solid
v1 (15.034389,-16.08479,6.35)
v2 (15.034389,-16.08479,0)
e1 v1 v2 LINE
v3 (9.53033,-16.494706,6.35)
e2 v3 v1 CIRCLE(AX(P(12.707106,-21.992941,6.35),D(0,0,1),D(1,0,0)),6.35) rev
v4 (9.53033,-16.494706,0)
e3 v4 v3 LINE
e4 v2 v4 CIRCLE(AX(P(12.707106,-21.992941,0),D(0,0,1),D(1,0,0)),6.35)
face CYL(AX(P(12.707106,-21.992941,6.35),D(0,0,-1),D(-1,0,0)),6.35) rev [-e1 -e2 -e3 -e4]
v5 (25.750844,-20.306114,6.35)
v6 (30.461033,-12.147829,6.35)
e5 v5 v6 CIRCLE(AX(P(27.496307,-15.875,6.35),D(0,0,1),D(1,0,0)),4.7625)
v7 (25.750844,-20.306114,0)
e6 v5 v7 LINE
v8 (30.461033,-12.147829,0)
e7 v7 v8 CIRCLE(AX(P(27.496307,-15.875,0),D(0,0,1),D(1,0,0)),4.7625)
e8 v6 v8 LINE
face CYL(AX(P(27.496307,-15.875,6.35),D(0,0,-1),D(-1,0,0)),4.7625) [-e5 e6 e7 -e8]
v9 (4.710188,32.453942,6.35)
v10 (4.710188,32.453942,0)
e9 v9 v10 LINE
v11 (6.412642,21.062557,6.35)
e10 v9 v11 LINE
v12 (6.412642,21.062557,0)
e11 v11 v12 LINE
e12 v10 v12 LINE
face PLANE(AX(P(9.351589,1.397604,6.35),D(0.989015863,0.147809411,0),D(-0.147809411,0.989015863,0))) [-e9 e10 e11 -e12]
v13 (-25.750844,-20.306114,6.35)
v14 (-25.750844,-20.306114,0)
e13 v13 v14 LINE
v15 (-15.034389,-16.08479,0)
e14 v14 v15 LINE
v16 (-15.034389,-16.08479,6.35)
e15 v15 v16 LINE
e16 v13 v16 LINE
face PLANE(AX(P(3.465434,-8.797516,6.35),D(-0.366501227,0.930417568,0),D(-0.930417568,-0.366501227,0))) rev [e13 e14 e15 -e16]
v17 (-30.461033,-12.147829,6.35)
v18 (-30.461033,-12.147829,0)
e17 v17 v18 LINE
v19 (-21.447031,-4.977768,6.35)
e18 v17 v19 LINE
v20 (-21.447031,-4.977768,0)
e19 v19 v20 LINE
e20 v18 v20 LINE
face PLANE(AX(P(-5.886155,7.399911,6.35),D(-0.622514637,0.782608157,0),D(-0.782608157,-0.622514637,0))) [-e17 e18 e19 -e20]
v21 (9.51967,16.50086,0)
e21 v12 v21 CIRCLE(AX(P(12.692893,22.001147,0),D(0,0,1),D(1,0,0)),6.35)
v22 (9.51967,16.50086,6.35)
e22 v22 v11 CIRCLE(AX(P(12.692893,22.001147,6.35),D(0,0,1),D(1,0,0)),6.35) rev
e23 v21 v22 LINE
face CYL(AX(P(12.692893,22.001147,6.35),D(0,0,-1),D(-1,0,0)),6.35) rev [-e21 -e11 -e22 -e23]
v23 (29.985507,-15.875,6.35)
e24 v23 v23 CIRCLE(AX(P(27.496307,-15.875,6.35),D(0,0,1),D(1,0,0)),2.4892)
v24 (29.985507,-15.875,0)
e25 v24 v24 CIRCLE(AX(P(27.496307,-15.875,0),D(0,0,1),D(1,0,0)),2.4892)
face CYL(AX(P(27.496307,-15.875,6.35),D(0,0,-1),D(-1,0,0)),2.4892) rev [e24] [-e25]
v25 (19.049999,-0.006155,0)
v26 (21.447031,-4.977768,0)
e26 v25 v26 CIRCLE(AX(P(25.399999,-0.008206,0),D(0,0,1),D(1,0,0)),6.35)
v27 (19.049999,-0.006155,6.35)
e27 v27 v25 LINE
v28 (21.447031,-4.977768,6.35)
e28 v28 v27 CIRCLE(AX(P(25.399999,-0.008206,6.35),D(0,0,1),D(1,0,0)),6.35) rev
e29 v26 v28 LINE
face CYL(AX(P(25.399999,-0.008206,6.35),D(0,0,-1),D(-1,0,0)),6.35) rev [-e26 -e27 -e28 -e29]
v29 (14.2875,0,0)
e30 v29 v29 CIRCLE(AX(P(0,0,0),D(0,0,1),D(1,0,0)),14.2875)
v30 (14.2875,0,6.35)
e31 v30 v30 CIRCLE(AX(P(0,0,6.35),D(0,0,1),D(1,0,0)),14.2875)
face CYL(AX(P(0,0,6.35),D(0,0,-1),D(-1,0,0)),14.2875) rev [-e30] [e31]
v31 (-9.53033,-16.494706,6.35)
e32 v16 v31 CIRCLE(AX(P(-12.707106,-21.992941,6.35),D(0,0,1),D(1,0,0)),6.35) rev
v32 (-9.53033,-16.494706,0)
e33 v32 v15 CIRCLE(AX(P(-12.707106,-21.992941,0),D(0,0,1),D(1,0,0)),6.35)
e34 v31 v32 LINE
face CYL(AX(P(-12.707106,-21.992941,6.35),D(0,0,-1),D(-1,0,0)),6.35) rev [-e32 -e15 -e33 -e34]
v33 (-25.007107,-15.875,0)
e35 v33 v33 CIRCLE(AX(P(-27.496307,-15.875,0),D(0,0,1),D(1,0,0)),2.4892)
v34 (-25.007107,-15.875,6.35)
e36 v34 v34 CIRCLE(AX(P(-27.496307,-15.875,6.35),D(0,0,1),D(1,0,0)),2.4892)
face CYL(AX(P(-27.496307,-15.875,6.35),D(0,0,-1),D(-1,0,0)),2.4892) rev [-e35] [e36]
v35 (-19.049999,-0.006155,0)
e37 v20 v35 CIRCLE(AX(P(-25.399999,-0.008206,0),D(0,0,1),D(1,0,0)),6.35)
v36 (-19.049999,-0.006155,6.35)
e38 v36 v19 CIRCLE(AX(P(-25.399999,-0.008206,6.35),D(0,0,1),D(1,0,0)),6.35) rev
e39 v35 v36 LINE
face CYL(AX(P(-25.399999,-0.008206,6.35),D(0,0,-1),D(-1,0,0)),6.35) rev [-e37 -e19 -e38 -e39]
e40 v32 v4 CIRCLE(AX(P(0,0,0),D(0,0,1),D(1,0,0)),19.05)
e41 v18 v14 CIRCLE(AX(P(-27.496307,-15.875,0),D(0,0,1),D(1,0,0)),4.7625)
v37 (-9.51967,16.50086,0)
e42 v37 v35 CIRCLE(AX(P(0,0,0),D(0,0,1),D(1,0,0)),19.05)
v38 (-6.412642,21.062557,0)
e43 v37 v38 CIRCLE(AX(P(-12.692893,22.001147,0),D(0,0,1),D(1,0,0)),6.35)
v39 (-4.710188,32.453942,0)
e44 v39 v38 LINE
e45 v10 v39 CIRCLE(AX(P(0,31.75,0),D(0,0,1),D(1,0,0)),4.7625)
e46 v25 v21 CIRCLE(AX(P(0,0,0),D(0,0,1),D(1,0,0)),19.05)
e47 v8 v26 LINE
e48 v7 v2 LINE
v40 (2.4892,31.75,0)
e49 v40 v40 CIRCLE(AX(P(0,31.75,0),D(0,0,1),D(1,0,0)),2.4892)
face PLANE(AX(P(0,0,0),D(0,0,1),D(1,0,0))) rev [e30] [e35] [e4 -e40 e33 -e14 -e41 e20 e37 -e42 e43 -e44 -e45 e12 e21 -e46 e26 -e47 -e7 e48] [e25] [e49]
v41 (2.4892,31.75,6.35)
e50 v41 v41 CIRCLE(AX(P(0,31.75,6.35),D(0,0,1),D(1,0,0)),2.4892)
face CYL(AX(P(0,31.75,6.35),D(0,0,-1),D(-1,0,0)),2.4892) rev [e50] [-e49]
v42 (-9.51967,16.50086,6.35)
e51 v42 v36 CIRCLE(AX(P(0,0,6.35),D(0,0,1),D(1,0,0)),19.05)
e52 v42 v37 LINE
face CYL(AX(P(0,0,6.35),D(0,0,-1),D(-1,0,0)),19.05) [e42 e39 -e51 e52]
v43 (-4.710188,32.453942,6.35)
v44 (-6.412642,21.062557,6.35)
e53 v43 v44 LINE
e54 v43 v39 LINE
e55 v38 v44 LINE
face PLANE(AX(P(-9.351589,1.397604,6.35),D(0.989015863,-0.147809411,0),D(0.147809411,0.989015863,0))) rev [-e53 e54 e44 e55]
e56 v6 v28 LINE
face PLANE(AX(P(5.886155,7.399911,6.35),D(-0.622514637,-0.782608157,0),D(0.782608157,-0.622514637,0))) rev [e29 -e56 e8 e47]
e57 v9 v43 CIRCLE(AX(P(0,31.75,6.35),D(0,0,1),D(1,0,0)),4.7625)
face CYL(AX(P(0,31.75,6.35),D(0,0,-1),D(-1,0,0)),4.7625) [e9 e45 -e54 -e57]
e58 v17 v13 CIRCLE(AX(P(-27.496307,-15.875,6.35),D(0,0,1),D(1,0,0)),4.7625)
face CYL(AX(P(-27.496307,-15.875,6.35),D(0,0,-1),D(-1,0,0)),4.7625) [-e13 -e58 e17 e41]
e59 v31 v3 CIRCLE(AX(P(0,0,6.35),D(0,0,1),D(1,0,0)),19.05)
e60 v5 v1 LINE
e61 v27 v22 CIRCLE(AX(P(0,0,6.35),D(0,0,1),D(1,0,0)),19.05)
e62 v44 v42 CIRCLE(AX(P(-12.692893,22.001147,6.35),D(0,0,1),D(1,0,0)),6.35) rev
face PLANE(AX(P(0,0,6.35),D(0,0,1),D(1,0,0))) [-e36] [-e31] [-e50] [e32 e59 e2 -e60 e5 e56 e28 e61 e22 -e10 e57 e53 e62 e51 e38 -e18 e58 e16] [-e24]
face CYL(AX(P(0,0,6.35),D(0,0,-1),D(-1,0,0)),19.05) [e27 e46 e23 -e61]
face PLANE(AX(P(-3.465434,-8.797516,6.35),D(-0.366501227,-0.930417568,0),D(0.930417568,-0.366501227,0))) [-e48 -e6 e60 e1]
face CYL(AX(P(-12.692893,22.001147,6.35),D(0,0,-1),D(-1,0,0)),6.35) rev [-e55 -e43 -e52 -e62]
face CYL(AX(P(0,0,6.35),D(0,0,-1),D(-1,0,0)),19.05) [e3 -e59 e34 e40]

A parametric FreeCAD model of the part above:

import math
import FreeCAD as App
import Part
import Sketcher
from FreeCAD import Vector
Q = App.Units.Quantity


def edges_at(feature, points):
    """Names of the edges that pass closest to the given points."""
    edges = feature.Shape.Edges
    near = lambda p: min(range(len(edges)), key=lambda i: edges[i].distToShape(Part.Vertex(*p))[0])
    return sorted({f"Edge{near(p) + 1}" for p in points})

doc = App.newDocument("Part")
body = doc.addObject("PartDesign::Body", "Body")

sketch1 = body.newObject("Sketcher::SketchObject", "Sketch")
sketch1.AttachmentSupport = (doc.getObject("XY_Plane"), [""])
sketch1.MapMode = "FlatFace"
sketch1.addGeometry([
    Part.LineSegment(Vector(6.9, 17.8, 0), Vector(4.7, 32.5, 0)),
    Part.ArcOfCircle(Part.Circle(Vector(0, 31.8, 0), Vector(0, 0, 1), 4.8), math.radians(9), math.radians(171)),
    Part.LineSegment(Vector(-4.7, 32.5, 0), Vector(-6.9, 17.8, 0)),
    Part.ArcOfCircle(Part.Circle(Vector(0, 0, 0), Vector(0, 0, 1), 19.1), math.radians(111), math.radians(189)),
    Part.LineSegment(Vector(-18.8, -2.9, 0), Vector(-30.5, -12.1, 0)),
    Part.ArcOfCircle(Part.Circle(Vector(-27.5, -15.9, 0), Vector(0, 0, 1), 4.8), math.radians(129), math.radians(291)),
    Part.LineSegment(Vector(-25.8, -20.3, 0), Vector(-11.9, -14.9, 0)),
    Part.ArcOfCircle(Part.Circle(Vector(0, 0, 0), Vector(0, 0, 1), 19.1), math.radians(-129), math.radians(-51)),
    Part.LineSegment(Vector(11.9, -14.9, 0), Vector(25.8, -20.3, 0)),
    Part.ArcOfCircle(Part.Circle(Vector(27.5, -15.9, 0), Vector(0, 0, 1), 4.8), math.radians(-111), math.radians(51)),
    Part.LineSegment(Vector(30.5, -12.1, 0), Vector(18.8, -2.9, 0)),
    Part.ArcOfCircle(Part.Circle(Vector(0, 0, 0), Vector(0, 0, 1), 19.1), math.radians(-9), math.radians(69)),
    Part.Circle(Vector(0, 0, 0), Vector(0, 0, 1), 14.3),
    Part.Circle(Vector(0, 31.8, 0), Vector(0, 0, 1), 2.5),
    Part.Circle(Vector(-27.5, -15.9, 0), Vector(0, 0, 1), 2.5),
    Part.Circle(Vector(27.5, -15.9, 0), Vector(0, 0, 1), 2.5),
], False)
sketch1.addConstraint([
    Sketcher.Constraint("Tangent", 0, 2, 1, 1),
    Sketcher.Constraint("Tangent", 1, 2, 2, 1),
    Sketcher.Constraint("Coincident", 2, 2, 3, 1),
    Sketcher.Constraint("Coincident", 3, 2, 4, 1),
    Sketcher.Constraint("Tangent", 4, 2, 5, 1),
    Sketcher.Constraint("Tangent", 5, 2, 6, 1),
    Sketcher.Constraint("Coincident", 6, 2, 7, 1),
    Sketcher.Constraint("Coincident", 7, 2, 8, 1),
    Sketcher.Constraint("Tangent", 8, 2, 9, 1),
    Sketcher.Constraint("Tangent", 9, 2, 10, 1),
    Sketcher.Constraint("Coincident", 10, 2, 11, 1),
    Sketcher.Constraint("Coincident", 11, 2, 0, 1),
    Sketcher.Constraint("Coincident", 3, 3, -1, 1),
    Sketcher.Constraint("Coincident", 7, 3, -1, 1),
    Sketcher.Constraint("Coincident", 11, 3, -1, 1),
    Sketcher.Constraint("Coincident", 12, 3, -1, 1),
    Sketcher.Constraint("Coincident", 13, 3, 1, 3),
    Sketcher.Constraint("Coincident", 14, 3, 5, 3),
    Sketcher.Constraint("Coincident", 15, 3, 9, 3),
    Sketcher.Constraint("Equal", 1, 5),
    Sketcher.Constraint("Equal", 3, 7),
    Sketcher.Constraint("Equal", 5, 9),
    Sketcher.Constraint("Equal", 7, 11),
    Sketcher.Constraint("Equal", 13, 14),
    Sketcher.Constraint("Equal", 14, 15),
    Sketcher.Constraint("Symmetric", 5, 3, 9, 3, -2),
    Sketcher.Constraint("Symmetric", 0, 2, 1, 2, -2),
    Sketcher.Constraint("Horizontal", 6, 2, 7, 2),
    Sketcher.Constraint("Horizontal", 4, 2, 9, 2),
    Sketcher.Constraint("Equal", 2, 4),
    Sketcher.Constraint("Equal", 4, 6),
    Sketcher.Constraint("Radius", 3, Q("0.75 in")),
    Sketcher.Constraint("Diameter", 12, Q("1.125 in")),
    Sketcher.Constraint("Diameter", 13, Q("0.196 in")),
    Sketcher.Constraint("Radius", 1, Q("0.1875 in")),
    Sketcher.Constraint("Angle", 0, Q("98.5 deg")),
    Sketcher.Constraint("Angle", 4, Q("-141.5 deg")),
    Sketcher.Constraint("Angle", 6, Q("21.5 deg")),
    Sketcher.Constraint("DistanceY", -1, 1, 1, 3, Q("1.25 in")),
])
pad1 = body.newObject("PartDesign::Pad", "Pad")
pad1.Profile = sketch1
pad1.Length = Q("0.25 in")
doc.recompute()

fillet = body.newObject("PartDesign::Fillet", "Fillet")
fillet.Base = (pad1, edges_at(pad1, [
    (18.829, -2.895, 3.175),
    (11.922, -14.859, 3.175),
    (-11.922, -14.859, 3.175),
    (-18.829, -2.895, 3.175),
    (-6.907, 17.754, 3.175),
    (6.907, 17.754, 3.175),
]))
fillet.Radius = Q("0.25 in")

doc.recompute()
